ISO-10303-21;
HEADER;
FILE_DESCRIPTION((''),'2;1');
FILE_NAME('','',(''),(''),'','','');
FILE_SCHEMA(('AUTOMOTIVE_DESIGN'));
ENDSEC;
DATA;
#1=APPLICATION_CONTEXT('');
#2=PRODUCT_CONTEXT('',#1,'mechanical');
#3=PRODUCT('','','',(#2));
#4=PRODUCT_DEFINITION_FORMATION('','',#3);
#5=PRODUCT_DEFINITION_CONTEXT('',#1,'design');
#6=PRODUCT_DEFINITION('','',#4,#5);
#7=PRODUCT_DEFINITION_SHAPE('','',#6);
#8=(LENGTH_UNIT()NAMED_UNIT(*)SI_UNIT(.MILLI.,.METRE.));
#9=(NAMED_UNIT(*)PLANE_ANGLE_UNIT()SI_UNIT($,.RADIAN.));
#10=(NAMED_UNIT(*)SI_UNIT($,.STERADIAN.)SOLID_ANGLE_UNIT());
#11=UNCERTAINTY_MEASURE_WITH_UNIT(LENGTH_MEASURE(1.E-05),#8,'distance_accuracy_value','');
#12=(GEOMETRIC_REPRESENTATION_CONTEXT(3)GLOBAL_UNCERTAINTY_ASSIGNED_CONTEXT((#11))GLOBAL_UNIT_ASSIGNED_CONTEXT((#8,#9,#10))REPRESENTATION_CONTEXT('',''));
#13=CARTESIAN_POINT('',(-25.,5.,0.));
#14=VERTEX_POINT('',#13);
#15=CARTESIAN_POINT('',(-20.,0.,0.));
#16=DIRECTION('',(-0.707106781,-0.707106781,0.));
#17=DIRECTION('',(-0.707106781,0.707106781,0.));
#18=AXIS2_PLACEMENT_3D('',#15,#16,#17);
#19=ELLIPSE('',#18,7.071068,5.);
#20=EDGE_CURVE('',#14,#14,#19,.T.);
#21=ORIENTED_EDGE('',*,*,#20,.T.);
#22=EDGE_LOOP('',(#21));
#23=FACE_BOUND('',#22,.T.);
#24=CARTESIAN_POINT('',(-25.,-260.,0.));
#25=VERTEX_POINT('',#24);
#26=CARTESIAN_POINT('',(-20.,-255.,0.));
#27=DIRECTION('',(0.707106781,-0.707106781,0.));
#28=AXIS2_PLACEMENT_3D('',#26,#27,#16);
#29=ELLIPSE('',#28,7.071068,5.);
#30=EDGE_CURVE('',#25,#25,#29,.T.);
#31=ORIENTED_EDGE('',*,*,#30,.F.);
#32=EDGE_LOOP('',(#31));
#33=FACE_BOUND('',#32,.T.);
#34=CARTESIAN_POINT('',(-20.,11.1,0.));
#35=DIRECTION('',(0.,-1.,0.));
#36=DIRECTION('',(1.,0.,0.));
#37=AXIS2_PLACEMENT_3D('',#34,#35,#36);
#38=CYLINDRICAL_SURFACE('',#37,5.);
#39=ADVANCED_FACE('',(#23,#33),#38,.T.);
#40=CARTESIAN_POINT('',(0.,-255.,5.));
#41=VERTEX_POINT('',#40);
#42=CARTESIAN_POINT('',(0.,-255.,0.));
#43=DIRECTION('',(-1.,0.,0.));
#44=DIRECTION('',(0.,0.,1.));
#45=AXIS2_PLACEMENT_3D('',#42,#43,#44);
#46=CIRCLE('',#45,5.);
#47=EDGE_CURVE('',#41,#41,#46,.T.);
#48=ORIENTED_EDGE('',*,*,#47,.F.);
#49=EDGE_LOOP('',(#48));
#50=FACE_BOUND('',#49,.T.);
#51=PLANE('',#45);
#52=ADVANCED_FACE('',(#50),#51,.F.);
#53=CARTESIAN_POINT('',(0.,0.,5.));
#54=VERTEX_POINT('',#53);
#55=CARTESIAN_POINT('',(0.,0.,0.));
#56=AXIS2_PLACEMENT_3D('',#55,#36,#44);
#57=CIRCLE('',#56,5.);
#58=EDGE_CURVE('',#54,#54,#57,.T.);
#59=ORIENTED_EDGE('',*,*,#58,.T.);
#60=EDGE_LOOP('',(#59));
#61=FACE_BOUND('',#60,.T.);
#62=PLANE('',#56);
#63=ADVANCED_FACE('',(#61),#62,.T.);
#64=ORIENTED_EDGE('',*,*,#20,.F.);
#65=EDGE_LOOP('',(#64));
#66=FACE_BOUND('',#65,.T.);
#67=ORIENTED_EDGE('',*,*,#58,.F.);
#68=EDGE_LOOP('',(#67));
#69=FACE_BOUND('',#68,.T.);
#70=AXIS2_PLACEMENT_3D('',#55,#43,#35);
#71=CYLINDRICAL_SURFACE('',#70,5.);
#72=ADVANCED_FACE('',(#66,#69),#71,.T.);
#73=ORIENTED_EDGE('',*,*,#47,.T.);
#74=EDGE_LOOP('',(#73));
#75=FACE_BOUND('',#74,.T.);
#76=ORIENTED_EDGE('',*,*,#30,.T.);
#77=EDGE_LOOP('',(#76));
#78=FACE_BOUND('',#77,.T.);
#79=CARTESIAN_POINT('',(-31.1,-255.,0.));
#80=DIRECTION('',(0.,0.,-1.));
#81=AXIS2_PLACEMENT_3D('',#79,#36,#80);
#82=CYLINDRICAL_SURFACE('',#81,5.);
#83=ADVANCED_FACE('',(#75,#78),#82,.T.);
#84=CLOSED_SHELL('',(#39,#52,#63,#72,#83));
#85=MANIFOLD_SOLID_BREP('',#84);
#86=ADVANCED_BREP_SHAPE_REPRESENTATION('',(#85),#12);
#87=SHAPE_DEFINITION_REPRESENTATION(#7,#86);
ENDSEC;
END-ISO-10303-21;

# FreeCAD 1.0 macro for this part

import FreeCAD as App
import Part
import Sketcher
Q = App.Units.Quantity

doc = App.newDocument("Part")
params = doc.addObject("Spreadsheet::Sheet", "Params")
for row, (alias, value) in enumerate([
    ("sketch1_diameter", "10 mm"),
    ("sketch2_width", "20 mm"),
    ("sketch2_height", "255 mm"),
], start=1):
    params.set(f"A{row}", alias)
    params.set(f"B{row}", "=" + value)
    params.setAlias(f"B{row}", alias)

body = doc.addObject("PartDesign::Body", "Body")

sketch1 = body.newObject("Sketcher::SketchObject", "Sketch")
sketch1.AttachmentSupport = (doc.getObject("YZ_Plane"), [""])
sketch1.MapMode = "FlatFace"
sketch1.addGeometry(Part.Circle(App.Vector(0, 0, 0), App.Vector(0, 0, 1), 5), False)
sketch1.addConstraint(Sketcher.Constraint("Coincident", 0, 3, -1, 1))
sketch1.addConstraint(Sketcher.Constraint("Diameter", 0, Q("10 mm")))
sketch1.setExpression("Constraints[1]", "Params.sketch1_diameter")

sketch2 = body.newObject("Sketcher::SketchObject", "Sketch001")
sketch2.AttachmentSupport = (doc.getObject("XY_Plane"), [""])
sketch2.MapMode = "FlatFace"
sketch2.addGeometry(Part.LineSegment(App.Vector(0, 0, 0), App.Vector(-20, 0, 0)), False)
sketch2.addGeometry(Part.LineSegment(App.Vector(-20, 0, 0), App.Vector(-20, -255, 0)), False)
sketch2.addGeometry(Part.LineSegment(App.Vector(-20, -255, 0), App.Vector(0, -255, 0)), False)
sketch2.addConstraint(Sketcher.Constraint("Coincident", 0, 2, 1, 1))
sketch2.addConstraint(Sketcher.Constraint("Coincident", 1, 2, 2, 1))
sketch2.addConstraint(Sketcher.Constraint("Horizontal", 0))
sketch2.addConstraint(Sketcher.Constraint("Vertical", 1))
sketch2.addConstraint(Sketcher.Constraint("Horizontal", 2))
sketch2.addConstraint(Sketcher.Constraint("Coincident", 0, 1, -1, 1))
sketch2.addConstraint(Sketcher.Constraint("PointOnObject", 2, 2, -2))
sketch2.addConstraint(Sketcher.Constraint("DistanceX", 0, 2, 0, 1, Q("20 mm")))
sketch2.addConstraint(Sketcher.Constraint("DistanceY", 1, 2, 1, 1, Q("255 mm")))
sketch2.setExpression("Constraints[7]", "Params.sketch2_width")
sketch2.setExpression("Constraints[8]", "Params.sketch2_height")
doc.recompute()

additivepipe = body.newObject("PartDesign::AdditivePipe", "AdditivePipe")
additivepipe.Profile = sketch1
additivepipe.Spine = (sketch2, ["Edge1", "Edge2", "Edge3"])
additivepipe.Transition = "Right corner"

doc.recompute()
